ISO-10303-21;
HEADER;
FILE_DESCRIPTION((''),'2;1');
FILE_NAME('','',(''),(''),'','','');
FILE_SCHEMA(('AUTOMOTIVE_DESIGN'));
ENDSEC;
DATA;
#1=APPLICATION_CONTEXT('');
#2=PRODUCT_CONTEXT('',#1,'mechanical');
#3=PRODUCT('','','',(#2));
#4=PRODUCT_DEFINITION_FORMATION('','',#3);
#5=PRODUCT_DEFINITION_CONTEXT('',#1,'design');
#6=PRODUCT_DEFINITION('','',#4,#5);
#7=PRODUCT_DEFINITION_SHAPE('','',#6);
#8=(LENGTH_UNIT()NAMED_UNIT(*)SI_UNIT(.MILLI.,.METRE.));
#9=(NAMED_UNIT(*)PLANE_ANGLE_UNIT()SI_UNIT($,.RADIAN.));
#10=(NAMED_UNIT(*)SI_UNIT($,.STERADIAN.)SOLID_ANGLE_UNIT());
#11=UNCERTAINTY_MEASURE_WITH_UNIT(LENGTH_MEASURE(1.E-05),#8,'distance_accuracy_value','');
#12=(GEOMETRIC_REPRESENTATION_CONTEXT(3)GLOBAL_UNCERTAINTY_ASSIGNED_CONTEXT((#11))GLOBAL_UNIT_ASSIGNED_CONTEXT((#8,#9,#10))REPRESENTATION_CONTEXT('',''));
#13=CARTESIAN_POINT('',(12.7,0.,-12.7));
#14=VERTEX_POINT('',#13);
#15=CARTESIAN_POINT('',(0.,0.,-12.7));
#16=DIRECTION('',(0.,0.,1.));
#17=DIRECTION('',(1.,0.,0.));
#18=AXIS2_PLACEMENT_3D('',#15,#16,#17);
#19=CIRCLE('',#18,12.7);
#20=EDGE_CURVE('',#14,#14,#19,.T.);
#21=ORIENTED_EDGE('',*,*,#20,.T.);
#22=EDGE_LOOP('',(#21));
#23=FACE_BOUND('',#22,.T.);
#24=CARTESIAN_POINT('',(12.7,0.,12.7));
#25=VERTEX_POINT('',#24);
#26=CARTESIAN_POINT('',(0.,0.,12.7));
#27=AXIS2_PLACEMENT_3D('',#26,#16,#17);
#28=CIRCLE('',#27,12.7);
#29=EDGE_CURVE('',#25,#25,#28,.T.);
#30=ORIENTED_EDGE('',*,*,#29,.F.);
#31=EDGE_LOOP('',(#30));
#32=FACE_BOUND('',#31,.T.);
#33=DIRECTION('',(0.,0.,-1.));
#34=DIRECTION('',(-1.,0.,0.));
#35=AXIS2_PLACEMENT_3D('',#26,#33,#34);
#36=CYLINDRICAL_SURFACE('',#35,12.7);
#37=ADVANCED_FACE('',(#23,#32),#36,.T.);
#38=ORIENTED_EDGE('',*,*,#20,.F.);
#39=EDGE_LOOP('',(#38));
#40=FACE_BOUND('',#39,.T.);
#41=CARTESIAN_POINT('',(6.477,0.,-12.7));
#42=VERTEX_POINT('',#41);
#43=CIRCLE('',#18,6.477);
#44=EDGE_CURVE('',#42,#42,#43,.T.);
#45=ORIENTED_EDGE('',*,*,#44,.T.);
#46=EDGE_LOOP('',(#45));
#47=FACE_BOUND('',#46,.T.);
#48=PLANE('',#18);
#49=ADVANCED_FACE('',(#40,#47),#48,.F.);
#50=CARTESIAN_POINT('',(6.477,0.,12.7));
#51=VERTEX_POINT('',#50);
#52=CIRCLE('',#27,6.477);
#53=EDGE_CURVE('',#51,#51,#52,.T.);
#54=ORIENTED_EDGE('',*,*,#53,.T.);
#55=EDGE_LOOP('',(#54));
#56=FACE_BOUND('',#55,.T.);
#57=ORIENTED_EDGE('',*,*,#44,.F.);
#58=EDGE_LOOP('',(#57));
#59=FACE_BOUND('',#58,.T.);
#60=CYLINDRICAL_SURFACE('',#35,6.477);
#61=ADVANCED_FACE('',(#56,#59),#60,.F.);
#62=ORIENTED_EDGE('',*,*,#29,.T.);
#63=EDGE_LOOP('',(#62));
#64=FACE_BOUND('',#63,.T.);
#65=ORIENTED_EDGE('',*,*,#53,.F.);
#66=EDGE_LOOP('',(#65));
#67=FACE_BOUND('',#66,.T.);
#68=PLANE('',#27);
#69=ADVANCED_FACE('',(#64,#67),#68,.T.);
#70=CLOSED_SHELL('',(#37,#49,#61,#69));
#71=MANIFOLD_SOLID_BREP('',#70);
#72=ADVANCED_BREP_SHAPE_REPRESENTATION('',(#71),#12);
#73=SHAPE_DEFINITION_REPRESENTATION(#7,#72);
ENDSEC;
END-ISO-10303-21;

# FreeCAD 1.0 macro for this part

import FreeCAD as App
import Part
import Sketcher

V = App.Vector
Q = App.Units.Quantity

doc = App.newDocument("Part")
params = doc.addObject("Spreadsheet::Sheet", "Params")
for row, (alias, value) in enumerate([
    ("sketch1_diameter", "1 in"),
    ("sketch1_diameter2", "0.51 in"),
    ("pad1_length", "0.5 in"),
    ("pad1_length2", "0.5 in"),
], start=1):
    params.set(f"A{row}", alias)
    params.set(f"B{row}", "=" + value)
    params.setAlias(f"B{row}", alias)

body = doc.addObject("PartDesign::Body", "Body")

# Sketch on XY plane
sketch1 = doc.addObject("Sketcher::SketchObject", "Sketch")
body.addObject(sketch1)
sketch1.AttachmentSupport = (doc.XY_Plane, [""])
sketch1.MapMode = "FlatFace"
sketch1.addGeometry(Part.Circle(V(0, 0, 0), V(0, 0, 1), 12.7), False)
sketch1.addGeometry(Part.Circle(V(0, 0, 0), V(0, 0, 1), 6.477), False)
sketch1.addConstraint(Sketcher.Constraint("Coincident", 0, 3, -1, 1))
sketch1.addConstraint(Sketcher.Constraint("Coincident", 1, 3, -1, 1))
sketch1.addConstraint(Sketcher.Constraint("Diameter", 0, Q("1 in")))
sketch1.addConstraint(Sketcher.Constraint("Diameter", 1, Q("0.51 in")))
sketch1.setExpression("Constraints[2]", "Params.sketch1_diameter")
sketch1.setExpression("Constraints[3]", "Params.sketch1_diameter2")
pad1 = doc.addObject("PartDesign::Pad", "Pad")
body.addObject(pad1)
pad1.Profile = sketch1
pad1.Type = "TwoLengths"
pad1.setExpression("Length", "Params.pad1_length")
pad1.setExpression("Length2", "Params.pad1_length2")

doc.recompute()
